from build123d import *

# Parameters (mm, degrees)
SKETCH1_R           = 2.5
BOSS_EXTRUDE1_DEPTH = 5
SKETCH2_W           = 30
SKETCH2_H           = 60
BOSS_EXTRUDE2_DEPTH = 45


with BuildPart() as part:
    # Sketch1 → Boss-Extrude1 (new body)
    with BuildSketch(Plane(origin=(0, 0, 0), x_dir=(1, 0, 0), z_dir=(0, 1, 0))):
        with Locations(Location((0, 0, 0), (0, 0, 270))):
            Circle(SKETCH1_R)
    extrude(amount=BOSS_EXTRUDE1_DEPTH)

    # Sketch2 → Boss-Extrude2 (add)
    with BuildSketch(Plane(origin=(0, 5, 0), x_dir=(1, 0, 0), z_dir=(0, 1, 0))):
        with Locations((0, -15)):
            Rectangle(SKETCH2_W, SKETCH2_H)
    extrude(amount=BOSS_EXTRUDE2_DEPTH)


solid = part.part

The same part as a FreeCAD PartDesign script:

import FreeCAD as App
import Part
import Sketcher

doc = App.newDocument("Part")
body = doc.addObject("PartDesign::Body", "Body")

# Sketch on XZ plane
sketch1 = body.newObject("Sketcher::SketchObject", "Sketch")
sketch1.AttachmentSupport = (doc.getObject("XZ_Plane"), [""])
sketch1.MapMode = "FlatFace"
sketch1.addGeometry(Part.Circle(App.Vector(0, 0, 0), App.Vector(0, 0, 1), 2.5), False)
sketch1.addConstraint([
    Sketcher.Constraint("Coincident", 0, 3, -1, 1),
    Sketcher.Constraint("Diameter", 0, 5.0),
])
pad1 = body.newObject("PartDesign::Pad", "Pad")
pad1.Profile = sketch1
pad1.Length = 5
pad1.Reversed = True

# Sketch on XZ plane
sketch2 = body.newObject("Sketcher::SketchObject", "Sketch001")
sketch2.AttachmentSupport = (doc.getObject("XZ_Plane"), [""])
sketch2.MapMode = "FlatFace"
sketch2.AttachmentOffset = App.Placement(App.Vector(0, 0, -5), App.Rotation())
sketch2.addGeometry([
    Part.LineSegment(App.Vector(-15, -15, 0), App.Vector(-15, 45, 0)),
    Part.LineSegment(App.Vector(-15, 45, 0), App.Vector(15, 45, 0)),
    Part.LineSegment(App.Vector(15, 45, 0), App.Vector(15, -15, 0)),
    Part.LineSegment(App.Vector(15, -15, 0), App.Vector(-15, -15, 0)),
], False)
sketch2.addConstraint([
    Sketcher.Constraint("Coincident", 0, 2, 1, 1),
    Sketcher.Constraint("Coincident", 1, 2, 2, 1),
    Sketcher.Constraint("Coincident", 2, 2, 3, 1),
    Sketcher.Constraint("Coincident", 3, 2, 0, 1),
    Sketcher.Constraint("Vertical", 0),
    Sketcher.Constraint("Horizontal", 1),
    Sketcher.Constraint("Vertical", 2),
    Sketcher.Constraint("Horizontal", 3),
    Sketcher.Constraint("DistanceX", 1, 1, 1, 2, 30.0),
    Sketcher.Constraint("DistanceY", 0, 1, 0, 2, 60.0),
    Sketcher.Constraint("DistanceX", 0, 2, -1, 1, 15.0),
    Sketcher.Constraint("DistanceY", -1, 1, 0, 2, 45.0),
])
pad2 = body.newObject("PartDesign::Pad", "Pad001")
pad2.Profile = sketch2
pad2.Length = 45
pad2.Reversed = True

doc.recompute()
